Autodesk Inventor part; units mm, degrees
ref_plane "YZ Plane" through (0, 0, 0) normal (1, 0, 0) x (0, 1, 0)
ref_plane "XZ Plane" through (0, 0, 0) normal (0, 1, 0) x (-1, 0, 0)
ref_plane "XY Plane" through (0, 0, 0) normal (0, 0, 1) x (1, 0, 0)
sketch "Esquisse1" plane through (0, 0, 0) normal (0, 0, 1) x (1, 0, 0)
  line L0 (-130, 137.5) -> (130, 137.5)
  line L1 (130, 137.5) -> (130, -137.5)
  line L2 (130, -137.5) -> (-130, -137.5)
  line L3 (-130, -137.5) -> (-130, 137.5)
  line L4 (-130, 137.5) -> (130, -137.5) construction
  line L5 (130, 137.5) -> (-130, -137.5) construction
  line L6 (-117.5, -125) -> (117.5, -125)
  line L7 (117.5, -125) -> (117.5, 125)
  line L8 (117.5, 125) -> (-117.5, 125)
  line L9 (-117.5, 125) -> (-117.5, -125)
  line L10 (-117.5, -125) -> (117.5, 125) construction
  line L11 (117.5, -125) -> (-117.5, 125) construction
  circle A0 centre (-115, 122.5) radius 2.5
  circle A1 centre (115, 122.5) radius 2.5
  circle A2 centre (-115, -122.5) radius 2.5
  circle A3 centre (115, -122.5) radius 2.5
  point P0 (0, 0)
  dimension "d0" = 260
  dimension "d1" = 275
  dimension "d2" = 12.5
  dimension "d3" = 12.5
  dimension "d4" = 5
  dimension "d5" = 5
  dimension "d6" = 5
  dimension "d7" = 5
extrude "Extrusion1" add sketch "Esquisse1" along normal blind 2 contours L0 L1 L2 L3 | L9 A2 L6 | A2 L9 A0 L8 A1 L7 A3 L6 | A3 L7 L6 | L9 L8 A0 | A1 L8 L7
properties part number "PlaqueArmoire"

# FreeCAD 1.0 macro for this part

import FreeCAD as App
import Part
import Sketcher
from FreeCAD import Vector
Q = App.Units.Quantity


def add_polygon(sketch, points):
    """Adds a closed chain of lines whose ends are joined by coincident constraints."""
    first, n = sketch.GeometryCount, len(points)
    for a, b in zip(points, points[1:] + points[:1]):
        sketch.addGeometry(Part.LineSegment(App.Vector(*a, 0), App.Vector(*b, 0)), False)
    for i in range(n):
        sketch.addConstraint(Sketcher.Constraint("Coincident", first + i, 2, first + (i + 1) % n, 1))

doc = App.newDocument("Part")
params = doc.addObject("Spreadsheet::Sheet", "Params")
for row, (alias, value) in enumerate([
    ("sketch1_diameter", "5 mm"),
    ("sketch1_width", "260 mm"),
    ("sketch1_height", "275 mm"),
    ("pad1_length", "2 mm"),
], start=1):
    params.set(f"A{row}", alias)
    params.set(f"B{row}", "=" + value)
    params.setAlias(f"B{row}", alias)

body = doc.addObject("PartDesign::Body", "Body")

sketch1 = body.newObject("Sketcher::SketchObject", "Sketch")
sketch1.AttachmentSupport = (doc.getObject("XY_Plane"), [""])
sketch1.MapMode = "FlatFace"
add_polygon(sketch1, [(130, 137.5), (-130, 137.5), (-130, -137.5), (130, -137.5)])
sketch1.addGeometry(Part.Circle(Vector(-115, -122.5, 0), Vector(0, 0, 1), 2.5), False)
sketch1.addGeometry(Part.Circle(Vector(115, 122.5, 0), Vector(0, 0, 1), 2.5), False)
sketch1.addGeometry(Part.Circle(Vector(-115, 122.5, 0), Vector(0, 0, 1), 2.5), False)
sketch1.addGeometry(Part.Circle(Vector(115, -122.5, 0), Vector(0, 0, 1), 2.5), False)
sketch1.addConstraint([
    Sketcher.Constraint("Horizontal", 0),
    Sketcher.Constraint("Vertical", 1),
    Sketcher.Constraint("Horizontal", 2),
    Sketcher.Constraint("Vertical", 3),
    Sketcher.Constraint("Equal", 4, 5),
    Sketcher.Constraint("Equal", 5, 6),
    Sketcher.Constraint("Equal", 6, 7),
    Sketcher.Constraint("Symmetric", 4, 3, 5, 3, -1, 1),
    Sketcher.Constraint("Symmetric", 6, 3, 7, 3, -1, 1),
    Sketcher.Constraint("Symmetric", 0, 2, 2, 2, -1, 1),
    Sketcher.Constraint("Symmetric", 5, 3, 6, 3, -2),
    Sketcher.Constraint("Diameter", 4, Q("5 mm")),
    Sketcher.Constraint("DistanceX", 0, 2, 0, 1, Q("260 mm")),
    Sketcher.Constraint("DistanceY", 1, 2, 1, 1, Q("275 mm")),
    Sketcher.Constraint("DistanceY", 4, 3, 0, 2, Q("260 mm")),
    Sketcher.Constraint("DistanceX", 4, 3, -1, 1, Q("115 mm")),
])
sketch1.setExpression("Constraints[15]", "Params.sketch1_diameter")
sketch1.setExpression("Constraints[16]", "Params.sketch1_width")
sketch1.setExpression("Constraints[17]", "Params.sketch1_height")
pad1 = body.newObject("PartDesign::Pad", "Pad")
pad1.Profile = sketch1
pad1.setExpression("Length", "Params.pad1_length")

doc.recompute()
